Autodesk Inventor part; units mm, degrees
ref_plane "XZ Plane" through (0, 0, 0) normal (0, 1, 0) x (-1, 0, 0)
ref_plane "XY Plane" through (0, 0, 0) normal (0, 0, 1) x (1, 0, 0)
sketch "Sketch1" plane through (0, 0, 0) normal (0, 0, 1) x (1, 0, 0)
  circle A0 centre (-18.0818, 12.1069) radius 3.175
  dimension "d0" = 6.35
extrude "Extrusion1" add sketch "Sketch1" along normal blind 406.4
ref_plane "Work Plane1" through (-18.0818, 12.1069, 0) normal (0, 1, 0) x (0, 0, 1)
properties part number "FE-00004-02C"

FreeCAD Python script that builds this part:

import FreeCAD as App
import Part
import Sketcher
from FreeCAD import Vector
Q = App.Units.Quantity

doc = App.newDocument("Part")
body = doc.addObject("PartDesign::Body", "Body")

# Sketch on XY plane
sketch1 = body.newObject("Sketcher::SketchObject", "Sketch")
sketch1.AttachmentSupport = (doc.getObject("XY_Plane"), [""])
sketch1.MapMode = "FlatFace"
sketch1.addGeometry(Part.Circle(Vector(-18.1, 12.1, 0), Vector(0, 0, 1), 3.2), False)
sketch1.addConstraint([
    Sketcher.Constraint("Diameter", 0, Q("0.25 in")),
    Sketcher.Constraint("DistanceX", 0, 3, -1, 1, Q("18.0818 mm")),
    Sketcher.Constraint("DistanceY", -1, 1, 0, 3, Q("12.107 mm")),
])
pad1 = body.newObject("PartDesign::Pad", "Pad")
pad1.Profile = sketch1
pad1.Length = Q("16 in")

doc.recompute()
